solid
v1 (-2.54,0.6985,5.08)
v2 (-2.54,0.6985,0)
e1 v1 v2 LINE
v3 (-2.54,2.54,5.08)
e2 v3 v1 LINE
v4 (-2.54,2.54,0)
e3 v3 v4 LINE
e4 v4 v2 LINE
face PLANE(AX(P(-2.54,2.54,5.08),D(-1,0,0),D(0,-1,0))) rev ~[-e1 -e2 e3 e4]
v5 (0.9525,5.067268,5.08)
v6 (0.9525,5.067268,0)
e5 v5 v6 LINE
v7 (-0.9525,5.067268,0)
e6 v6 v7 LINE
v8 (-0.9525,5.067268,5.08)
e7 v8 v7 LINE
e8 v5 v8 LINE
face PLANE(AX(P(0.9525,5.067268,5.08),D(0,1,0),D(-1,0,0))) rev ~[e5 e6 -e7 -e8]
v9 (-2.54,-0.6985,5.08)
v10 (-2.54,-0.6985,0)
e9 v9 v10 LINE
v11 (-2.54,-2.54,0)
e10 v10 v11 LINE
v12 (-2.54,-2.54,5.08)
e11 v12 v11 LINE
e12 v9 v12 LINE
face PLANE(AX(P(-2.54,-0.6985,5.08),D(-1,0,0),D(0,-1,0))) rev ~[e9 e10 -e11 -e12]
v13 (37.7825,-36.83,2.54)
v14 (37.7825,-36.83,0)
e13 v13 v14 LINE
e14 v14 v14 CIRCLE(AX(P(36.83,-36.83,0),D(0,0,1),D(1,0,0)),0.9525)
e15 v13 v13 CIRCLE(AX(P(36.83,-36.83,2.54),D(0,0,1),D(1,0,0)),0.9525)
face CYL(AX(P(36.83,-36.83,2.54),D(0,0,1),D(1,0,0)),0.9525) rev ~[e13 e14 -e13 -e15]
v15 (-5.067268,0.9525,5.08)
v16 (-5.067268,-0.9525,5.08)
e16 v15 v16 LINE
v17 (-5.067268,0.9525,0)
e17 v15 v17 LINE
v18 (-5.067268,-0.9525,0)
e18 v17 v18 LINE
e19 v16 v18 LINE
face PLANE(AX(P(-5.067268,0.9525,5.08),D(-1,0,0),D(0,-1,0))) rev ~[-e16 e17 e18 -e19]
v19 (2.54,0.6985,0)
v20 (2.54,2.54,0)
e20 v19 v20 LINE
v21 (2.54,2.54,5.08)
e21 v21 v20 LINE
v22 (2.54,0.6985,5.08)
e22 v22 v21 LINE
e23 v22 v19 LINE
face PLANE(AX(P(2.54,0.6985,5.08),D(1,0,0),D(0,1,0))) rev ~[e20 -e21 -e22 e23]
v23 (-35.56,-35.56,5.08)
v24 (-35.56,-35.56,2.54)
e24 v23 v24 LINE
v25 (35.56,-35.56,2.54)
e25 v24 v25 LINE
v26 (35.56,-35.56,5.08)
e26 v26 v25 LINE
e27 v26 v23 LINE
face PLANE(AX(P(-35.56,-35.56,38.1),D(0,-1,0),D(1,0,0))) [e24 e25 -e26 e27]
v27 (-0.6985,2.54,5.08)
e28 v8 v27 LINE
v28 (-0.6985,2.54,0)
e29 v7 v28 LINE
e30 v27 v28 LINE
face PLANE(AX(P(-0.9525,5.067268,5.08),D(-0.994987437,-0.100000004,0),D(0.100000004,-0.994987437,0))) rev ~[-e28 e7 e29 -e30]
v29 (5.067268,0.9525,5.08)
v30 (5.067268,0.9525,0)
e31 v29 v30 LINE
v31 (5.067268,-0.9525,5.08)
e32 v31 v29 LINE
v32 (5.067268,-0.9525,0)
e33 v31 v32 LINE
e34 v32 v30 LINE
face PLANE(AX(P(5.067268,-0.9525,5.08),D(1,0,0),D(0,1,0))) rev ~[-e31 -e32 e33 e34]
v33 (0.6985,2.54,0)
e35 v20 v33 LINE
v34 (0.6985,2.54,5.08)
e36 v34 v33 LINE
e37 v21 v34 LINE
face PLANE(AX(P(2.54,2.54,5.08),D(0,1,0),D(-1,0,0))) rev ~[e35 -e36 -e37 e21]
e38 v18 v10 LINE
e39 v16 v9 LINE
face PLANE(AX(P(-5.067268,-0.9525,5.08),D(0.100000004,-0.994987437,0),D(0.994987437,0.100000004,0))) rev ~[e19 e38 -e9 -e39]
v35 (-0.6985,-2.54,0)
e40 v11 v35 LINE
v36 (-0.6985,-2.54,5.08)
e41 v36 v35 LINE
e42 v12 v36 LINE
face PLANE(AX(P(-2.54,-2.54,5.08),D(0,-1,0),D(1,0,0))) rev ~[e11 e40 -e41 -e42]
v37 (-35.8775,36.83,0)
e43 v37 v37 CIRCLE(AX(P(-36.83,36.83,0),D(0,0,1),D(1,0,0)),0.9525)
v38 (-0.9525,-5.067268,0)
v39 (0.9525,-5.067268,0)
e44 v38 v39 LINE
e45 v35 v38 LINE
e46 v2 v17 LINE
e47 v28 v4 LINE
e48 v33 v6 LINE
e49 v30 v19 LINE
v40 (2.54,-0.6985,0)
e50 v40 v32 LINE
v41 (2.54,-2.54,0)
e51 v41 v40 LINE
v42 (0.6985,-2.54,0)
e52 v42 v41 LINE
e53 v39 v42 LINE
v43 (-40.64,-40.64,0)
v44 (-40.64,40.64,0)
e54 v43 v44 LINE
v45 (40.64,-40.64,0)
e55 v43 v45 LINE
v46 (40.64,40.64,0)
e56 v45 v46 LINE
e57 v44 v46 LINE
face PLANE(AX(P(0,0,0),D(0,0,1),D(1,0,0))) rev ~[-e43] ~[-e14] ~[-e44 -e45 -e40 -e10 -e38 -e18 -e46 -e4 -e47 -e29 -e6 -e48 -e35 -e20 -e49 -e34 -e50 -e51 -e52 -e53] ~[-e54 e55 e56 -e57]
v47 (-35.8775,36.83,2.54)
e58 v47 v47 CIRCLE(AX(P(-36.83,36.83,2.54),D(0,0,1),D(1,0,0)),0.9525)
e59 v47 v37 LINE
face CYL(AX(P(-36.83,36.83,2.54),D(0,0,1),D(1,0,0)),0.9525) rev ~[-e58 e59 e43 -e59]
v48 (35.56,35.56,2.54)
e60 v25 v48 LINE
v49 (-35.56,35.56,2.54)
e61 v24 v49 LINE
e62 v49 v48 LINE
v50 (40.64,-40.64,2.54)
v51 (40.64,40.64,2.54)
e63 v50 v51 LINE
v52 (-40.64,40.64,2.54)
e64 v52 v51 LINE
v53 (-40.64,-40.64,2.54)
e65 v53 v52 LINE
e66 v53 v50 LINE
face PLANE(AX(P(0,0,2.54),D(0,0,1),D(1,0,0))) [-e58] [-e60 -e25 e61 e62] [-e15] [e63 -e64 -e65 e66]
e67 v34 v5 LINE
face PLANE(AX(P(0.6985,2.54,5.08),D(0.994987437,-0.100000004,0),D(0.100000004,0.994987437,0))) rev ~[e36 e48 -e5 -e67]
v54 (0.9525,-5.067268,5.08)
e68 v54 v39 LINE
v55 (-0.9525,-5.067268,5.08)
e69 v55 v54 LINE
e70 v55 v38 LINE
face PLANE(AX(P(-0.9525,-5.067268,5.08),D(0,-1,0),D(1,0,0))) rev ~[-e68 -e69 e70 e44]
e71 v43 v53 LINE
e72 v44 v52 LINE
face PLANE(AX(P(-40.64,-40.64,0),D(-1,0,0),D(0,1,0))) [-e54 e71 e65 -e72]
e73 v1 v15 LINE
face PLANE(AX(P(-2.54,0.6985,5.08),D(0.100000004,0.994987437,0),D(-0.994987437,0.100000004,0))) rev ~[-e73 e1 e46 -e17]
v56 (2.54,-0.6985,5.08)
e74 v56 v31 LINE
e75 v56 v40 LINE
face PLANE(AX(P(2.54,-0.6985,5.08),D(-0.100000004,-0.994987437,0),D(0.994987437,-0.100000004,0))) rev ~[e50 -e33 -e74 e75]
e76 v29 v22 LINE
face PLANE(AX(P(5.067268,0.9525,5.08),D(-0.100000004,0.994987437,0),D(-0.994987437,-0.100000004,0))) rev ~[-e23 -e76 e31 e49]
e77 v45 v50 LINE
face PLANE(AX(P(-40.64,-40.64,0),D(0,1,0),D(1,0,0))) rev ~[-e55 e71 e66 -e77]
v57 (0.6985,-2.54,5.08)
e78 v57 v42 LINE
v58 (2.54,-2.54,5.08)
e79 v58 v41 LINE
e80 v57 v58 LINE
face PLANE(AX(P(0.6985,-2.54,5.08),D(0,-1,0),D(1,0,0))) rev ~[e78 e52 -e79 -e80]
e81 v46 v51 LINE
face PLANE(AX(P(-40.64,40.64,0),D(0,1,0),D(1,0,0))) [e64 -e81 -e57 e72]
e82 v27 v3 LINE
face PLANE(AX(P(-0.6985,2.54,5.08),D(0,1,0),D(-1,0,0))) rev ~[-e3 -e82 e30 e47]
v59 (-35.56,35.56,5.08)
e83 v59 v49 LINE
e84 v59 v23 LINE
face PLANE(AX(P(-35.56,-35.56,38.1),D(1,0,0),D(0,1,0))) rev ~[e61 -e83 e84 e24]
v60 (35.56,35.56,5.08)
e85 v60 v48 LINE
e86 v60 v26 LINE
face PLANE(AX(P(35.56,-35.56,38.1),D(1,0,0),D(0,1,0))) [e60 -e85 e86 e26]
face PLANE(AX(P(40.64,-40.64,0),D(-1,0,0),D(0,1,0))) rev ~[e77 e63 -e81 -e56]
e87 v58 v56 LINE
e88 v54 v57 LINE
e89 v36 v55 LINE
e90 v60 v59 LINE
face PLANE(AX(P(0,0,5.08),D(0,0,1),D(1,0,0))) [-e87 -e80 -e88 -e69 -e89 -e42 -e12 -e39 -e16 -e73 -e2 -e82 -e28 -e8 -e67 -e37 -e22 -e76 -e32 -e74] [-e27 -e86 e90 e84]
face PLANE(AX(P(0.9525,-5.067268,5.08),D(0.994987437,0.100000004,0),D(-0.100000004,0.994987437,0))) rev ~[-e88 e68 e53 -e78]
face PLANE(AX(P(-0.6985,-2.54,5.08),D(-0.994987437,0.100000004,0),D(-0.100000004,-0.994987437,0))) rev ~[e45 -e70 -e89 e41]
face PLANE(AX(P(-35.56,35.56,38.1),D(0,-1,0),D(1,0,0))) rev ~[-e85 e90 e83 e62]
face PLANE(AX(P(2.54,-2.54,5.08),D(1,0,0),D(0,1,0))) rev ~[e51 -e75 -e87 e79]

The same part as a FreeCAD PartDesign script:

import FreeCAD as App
import Part
import Sketcher

V = App.Vector
Q = App.Units.Quantity


def add_polygon(sketch, points):
    """Adds a closed chain of lines whose ends are joined by coincident constraints."""
    first, n = sketch.GeometryCount, len(points)
    for a, b in zip(points, points[1:] + points[:1]):
        sketch.addGeometry(Part.LineSegment(App.Vector(*a, 0), App.Vector(*b, 0)), False)
    for i in range(n):
        sketch.addConstraint(Sketcher.Constraint("Coincident", first + i, 2, first + (i + 1) % n, 1))

doc = App.newDocument("Part")
body = doc.addObject("PartDesign::Body", "Body")

# Sketch on XY plane
sketch1 = body.newObject("Sketcher::SketchObject", "Sketch")
sketch1.AttachmentSupport = (doc.getObject("XY_Plane"), [""])
sketch1.MapMode = "FlatFace"
add_polygon(sketch1, [(-40.64, 40.64), (-40.64, -40.64), (40.64, -40.64), (40.64, 40.64)])  # lines 0-3
sketch1.addConstraint([
    Sketcher.Constraint("Vertical", 0),
    Sketcher.Constraint("Horizontal", 1),
    Sketcher.Constraint("Vertical", 2),
    Sketcher.Constraint("Horizontal", 3),
    Sketcher.Constraint("Symmetric", 0, 2, 2, 2, -1, 1),
    Sketcher.Constraint("Equal", 3, 0),
    Sketcher.Constraint("DistanceX", 1, 1, 1, 2, Q("3.2 in")),
])
pad1 = body.newObject("PartDesign::Pad", "Pad")
pad1.Profile = sketch1
pad1.Length = Q("1.5 in")

# Sketch on XY plane
sketch2 = body.newObject("Sketcher::SketchObject", "Sketch001")
sketch2.AttachmentSupport = (doc.getObject("XY_Plane"), [""])
sketch2.MapMode = "FlatFace"
sketch2.AttachmentOffset = App.Placement(V(0, 0, 1.5 * 25.4), App.Rotation())
add_polygon(sketch2, [(-40.64, 40.64), (-40.64, -40.64), (40.64, -40.64), (40.64, 40.64)])  # lines 0-3
add_polygon(sketch2, [(35.56, -35.56), (-35.56, -35.56), (-35.56, 35.56), (35.56, 35.56)])  # lines 4-7
sketch2.addConstraint([
    Sketcher.Constraint("Vertical", 0),
    Sketcher.Constraint("Horizontal", 1),
    Sketcher.Constraint("Vertical", 2),
    Sketcher.Constraint("Horizontal", 3),
    Sketcher.Constraint("Horizontal", 4),
    Sketcher.Constraint("Vertical", 5),
    Sketcher.Constraint("Horizontal", 6),
    Sketcher.Constraint("Vertical", 7),
    Sketcher.Constraint("Symmetric", 0, 2, 2, 2, -1, 1),
    Sketcher.Constraint("Symmetric", 4, 2, 6, 2, -1, 1),
    Sketcher.Constraint("Equal", 3, 0),
    Sketcher.Constraint("Equal", 6, 5),
    Sketcher.Constraint("DistanceX", 1, 1, 1, 2, Q("3.2 in")),
    Sketcher.Constraint("DistanceX", 4, 2, 4, 1, Q("2.8 in")),
])
pocket1 = body.newObject("PartDesign::Pocket", "Pocket")
pocket1.Profile = sketch2
pocket1.Length = Q("1.4 in")

# Sketch on XY plane
sketch3 = body.newObject("Sketcher::SketchObject", "Sketch002")
sketch3.AttachmentSupport = (doc.getObject("XY_Plane"), [""])
sketch3.MapMode = "FlatFace"
sketch3.AttachmentOffset = App.Placement(V(0, 0, 1.5 * 25.4), App.Rotation())
add_polygon(sketch3, [(-38.1, 38.1), (-38.1, -38.1), (38.1, -38.1), (38.1, 38.1)])  # lines 0-3
sketch3.addConstraint([
    Sketcher.Constraint("Vertical", 0),
    Sketcher.Constraint("Horizontal", 1),
    Sketcher.Constraint("Vertical", 2),
    Sketcher.Constraint("Horizontal", 3),
    Sketcher.Constraint("Symmetric", 0, 2, 2, 2, -1, 1),
    Sketcher.Constraint("Equal", 3, 0),
    Sketcher.Constraint("DistanceX", 1, 1, 1, 2, Q("3 in")),
])
pocket2 = body.newObject("PartDesign::Pocket", "Pocket001")
pocket2.Profile = sketch3
pocket2.Length = Q("1.3 in")

# Sketch on XY plane
sketch4 = body.newObject("Sketcher::SketchObject", "Sketch003")
sketch4.AttachmentSupport = (doc.getObject("XY_Plane"), [""])
sketch4.MapMode = "FlatFace"
sketch4.AttachmentOffset = App.Placement(V(0, 0, 0.2 * 25.4), App.Rotation())
add_polygon(sketch4, [(-0.9525, -5.067268), (0.9525, -5.067268), (0.6985, -2.54), (2.54, -2.54), (2.54, -0.6985), (5.067268, -0.9525), (5.067268, 0.9525), (2.54, 0.6985), (2.54, 2.54), (0.6985, 2.54), (0.9525, 5.067268), (-0.9525, 5.067268), (-0.6985, 2.54), (-2.54, 2.54), (-2.54, 0.6985), (-5.067268, 0.9525), (-5.067268, -0.9525), (-2.54, -0.6985), (-2.54, -2.54), (-0.6985, -2.54)])  # lines 0-19
sketch4.addConstraint([
    Sketcher.Constraint("Horizontal", 0),
    Sketcher.Constraint("Horizontal", 2),
    Sketcher.Constraint("Vertical", 3),
    Sketcher.Constraint("Vertical", 5),
    Sketcher.Constraint("Vertical", 7),
    Sketcher.Constraint("Horizontal", 8),
    Sketcher.Constraint("Horizontal", 10),
    Sketcher.Constraint("Horizontal", 12),
    Sketcher.Constraint("Vertical", 13),
    Sketcher.Constraint("Vertical", 15),
    Sketcher.Constraint("Vertical", 17),
    Sketcher.Constraint("Horizontal", 18),
    Sketcher.Constraint("Symmetric", 0, 2, 10, 2, -1, 1),
    Sketcher.Constraint("Symmetric", 1, 2, 11, 2, -1, 1),
    Sketcher.Constraint("Symmetric", 3, 2, 13, 2, -1, 1),
    Sketcher.Constraint("Symmetric", 4, 2, 14, 2, -1, 1),
    Sketcher.Constraint("Symmetric", 6, 2, 16, 2, -1, 1),
    Sketcher.Constraint("Symmetric", 8, 2, 18, 2, -1, 1),
    Sketcher.Constraint("Symmetric", 8, 2, 11, 2, -2),
    Sketcher.Constraint("Symmetric", 6, 2, 13, 2, -2),
    Sketcher.Constraint("Perpendicular", 1, 6),
    Sketcher.Constraint("Perpendicular", 4, 9),
    Sketcher.Constraint("Perpendicular", 11, 16),
    Sketcher.Constraint("Perpendicular", 14, 19),
    Sketcher.Constraint("Horizontal", 5, 2, 14, 2),
    Sketcher.Constraint("Equal", 18, 3),
    Sketcher.Constraint("Equal", 10, 5),
    Sketcher.Constraint("Equal", 1, 4),
    Sketcher.Constraint("Distance", 1, Q("0.1 in")),
    Sketcher.Constraint("DistanceY", 1, 2, -1, 1, Q("0.1 in")),
    Sketcher.Constraint("DistanceX", 0, 1, 0, 2, Q("0.075 in")),
    Sketcher.Constraint("DistanceX", 1, 2, 0, 2, Q("0.01 in")),
])
pocket3 = body.newObject("PartDesign::Pocket", "Pocket002")
pocket3.Profile = sketch4
pocket3.Length = Q("1 in")

# Sketch on XY plane
sketch5 = body.newObject("Sketcher::SketchObject", "Sketch004")
sketch5.AttachmentSupport = (doc.getObject("XY_Plane"), [""])
sketch5.MapMode = "FlatFace"
sketch5.AttachmentOffset = App.Placement(V(0, 0, 0.1 * 25.4), App.Rotation())
sketch5.addGeometry(Part.Circle(V(-36.83, 36.83, 0), V(0, 0, 1), 0.9525), False)
sketch5.addConstraint([
    Sketcher.Constraint("Diameter", 0, Q("0.075 in")),
    Sketcher.Constraint("DistanceX", 0, 3, -1, 1, Q("1.45 in")),
    Sketcher.Constraint("DistanceY", -1, 1, 0, 3, Q("1.45 in")),
])
pocket4 = body.newObject("PartDesign::Pocket", "Pocket003")
pocket4.Profile = sketch5
pocket4.Length = Q("1 in")

# Sketch on XY plane
sketch6 = body.newObject("Sketcher::SketchObject", "Sketch005")
sketch6.AttachmentSupport = (doc.getObject("XY_Plane"), [""])
sketch6.MapMode = "FlatFace"
sketch6.AttachmentOffset = App.Placement(V(0, 0, 0.1 * 25.4), App.Rotation())
sketch6.addGeometry(Part.Circle(V(36.83, -36.83, 0), V(0, 0, 1), 0.9525), False)
sketch6.addConstraint([
    Sketcher.Constraint("Diameter", 0, Q("0.075 in")),
    Sketcher.Constraint("DistanceX", -1, 1, 0, 3, Q("1.45 in")),
    Sketcher.Constraint("DistanceY", 0, 3, -1, 1, Q("1.45 in")),
])
pocket5 = body.newObject("PartDesign::Pocket", "Pocket004")
pocket5.Profile = sketch6
pocket5.Length = Q("1 in")

doc.recompute()
